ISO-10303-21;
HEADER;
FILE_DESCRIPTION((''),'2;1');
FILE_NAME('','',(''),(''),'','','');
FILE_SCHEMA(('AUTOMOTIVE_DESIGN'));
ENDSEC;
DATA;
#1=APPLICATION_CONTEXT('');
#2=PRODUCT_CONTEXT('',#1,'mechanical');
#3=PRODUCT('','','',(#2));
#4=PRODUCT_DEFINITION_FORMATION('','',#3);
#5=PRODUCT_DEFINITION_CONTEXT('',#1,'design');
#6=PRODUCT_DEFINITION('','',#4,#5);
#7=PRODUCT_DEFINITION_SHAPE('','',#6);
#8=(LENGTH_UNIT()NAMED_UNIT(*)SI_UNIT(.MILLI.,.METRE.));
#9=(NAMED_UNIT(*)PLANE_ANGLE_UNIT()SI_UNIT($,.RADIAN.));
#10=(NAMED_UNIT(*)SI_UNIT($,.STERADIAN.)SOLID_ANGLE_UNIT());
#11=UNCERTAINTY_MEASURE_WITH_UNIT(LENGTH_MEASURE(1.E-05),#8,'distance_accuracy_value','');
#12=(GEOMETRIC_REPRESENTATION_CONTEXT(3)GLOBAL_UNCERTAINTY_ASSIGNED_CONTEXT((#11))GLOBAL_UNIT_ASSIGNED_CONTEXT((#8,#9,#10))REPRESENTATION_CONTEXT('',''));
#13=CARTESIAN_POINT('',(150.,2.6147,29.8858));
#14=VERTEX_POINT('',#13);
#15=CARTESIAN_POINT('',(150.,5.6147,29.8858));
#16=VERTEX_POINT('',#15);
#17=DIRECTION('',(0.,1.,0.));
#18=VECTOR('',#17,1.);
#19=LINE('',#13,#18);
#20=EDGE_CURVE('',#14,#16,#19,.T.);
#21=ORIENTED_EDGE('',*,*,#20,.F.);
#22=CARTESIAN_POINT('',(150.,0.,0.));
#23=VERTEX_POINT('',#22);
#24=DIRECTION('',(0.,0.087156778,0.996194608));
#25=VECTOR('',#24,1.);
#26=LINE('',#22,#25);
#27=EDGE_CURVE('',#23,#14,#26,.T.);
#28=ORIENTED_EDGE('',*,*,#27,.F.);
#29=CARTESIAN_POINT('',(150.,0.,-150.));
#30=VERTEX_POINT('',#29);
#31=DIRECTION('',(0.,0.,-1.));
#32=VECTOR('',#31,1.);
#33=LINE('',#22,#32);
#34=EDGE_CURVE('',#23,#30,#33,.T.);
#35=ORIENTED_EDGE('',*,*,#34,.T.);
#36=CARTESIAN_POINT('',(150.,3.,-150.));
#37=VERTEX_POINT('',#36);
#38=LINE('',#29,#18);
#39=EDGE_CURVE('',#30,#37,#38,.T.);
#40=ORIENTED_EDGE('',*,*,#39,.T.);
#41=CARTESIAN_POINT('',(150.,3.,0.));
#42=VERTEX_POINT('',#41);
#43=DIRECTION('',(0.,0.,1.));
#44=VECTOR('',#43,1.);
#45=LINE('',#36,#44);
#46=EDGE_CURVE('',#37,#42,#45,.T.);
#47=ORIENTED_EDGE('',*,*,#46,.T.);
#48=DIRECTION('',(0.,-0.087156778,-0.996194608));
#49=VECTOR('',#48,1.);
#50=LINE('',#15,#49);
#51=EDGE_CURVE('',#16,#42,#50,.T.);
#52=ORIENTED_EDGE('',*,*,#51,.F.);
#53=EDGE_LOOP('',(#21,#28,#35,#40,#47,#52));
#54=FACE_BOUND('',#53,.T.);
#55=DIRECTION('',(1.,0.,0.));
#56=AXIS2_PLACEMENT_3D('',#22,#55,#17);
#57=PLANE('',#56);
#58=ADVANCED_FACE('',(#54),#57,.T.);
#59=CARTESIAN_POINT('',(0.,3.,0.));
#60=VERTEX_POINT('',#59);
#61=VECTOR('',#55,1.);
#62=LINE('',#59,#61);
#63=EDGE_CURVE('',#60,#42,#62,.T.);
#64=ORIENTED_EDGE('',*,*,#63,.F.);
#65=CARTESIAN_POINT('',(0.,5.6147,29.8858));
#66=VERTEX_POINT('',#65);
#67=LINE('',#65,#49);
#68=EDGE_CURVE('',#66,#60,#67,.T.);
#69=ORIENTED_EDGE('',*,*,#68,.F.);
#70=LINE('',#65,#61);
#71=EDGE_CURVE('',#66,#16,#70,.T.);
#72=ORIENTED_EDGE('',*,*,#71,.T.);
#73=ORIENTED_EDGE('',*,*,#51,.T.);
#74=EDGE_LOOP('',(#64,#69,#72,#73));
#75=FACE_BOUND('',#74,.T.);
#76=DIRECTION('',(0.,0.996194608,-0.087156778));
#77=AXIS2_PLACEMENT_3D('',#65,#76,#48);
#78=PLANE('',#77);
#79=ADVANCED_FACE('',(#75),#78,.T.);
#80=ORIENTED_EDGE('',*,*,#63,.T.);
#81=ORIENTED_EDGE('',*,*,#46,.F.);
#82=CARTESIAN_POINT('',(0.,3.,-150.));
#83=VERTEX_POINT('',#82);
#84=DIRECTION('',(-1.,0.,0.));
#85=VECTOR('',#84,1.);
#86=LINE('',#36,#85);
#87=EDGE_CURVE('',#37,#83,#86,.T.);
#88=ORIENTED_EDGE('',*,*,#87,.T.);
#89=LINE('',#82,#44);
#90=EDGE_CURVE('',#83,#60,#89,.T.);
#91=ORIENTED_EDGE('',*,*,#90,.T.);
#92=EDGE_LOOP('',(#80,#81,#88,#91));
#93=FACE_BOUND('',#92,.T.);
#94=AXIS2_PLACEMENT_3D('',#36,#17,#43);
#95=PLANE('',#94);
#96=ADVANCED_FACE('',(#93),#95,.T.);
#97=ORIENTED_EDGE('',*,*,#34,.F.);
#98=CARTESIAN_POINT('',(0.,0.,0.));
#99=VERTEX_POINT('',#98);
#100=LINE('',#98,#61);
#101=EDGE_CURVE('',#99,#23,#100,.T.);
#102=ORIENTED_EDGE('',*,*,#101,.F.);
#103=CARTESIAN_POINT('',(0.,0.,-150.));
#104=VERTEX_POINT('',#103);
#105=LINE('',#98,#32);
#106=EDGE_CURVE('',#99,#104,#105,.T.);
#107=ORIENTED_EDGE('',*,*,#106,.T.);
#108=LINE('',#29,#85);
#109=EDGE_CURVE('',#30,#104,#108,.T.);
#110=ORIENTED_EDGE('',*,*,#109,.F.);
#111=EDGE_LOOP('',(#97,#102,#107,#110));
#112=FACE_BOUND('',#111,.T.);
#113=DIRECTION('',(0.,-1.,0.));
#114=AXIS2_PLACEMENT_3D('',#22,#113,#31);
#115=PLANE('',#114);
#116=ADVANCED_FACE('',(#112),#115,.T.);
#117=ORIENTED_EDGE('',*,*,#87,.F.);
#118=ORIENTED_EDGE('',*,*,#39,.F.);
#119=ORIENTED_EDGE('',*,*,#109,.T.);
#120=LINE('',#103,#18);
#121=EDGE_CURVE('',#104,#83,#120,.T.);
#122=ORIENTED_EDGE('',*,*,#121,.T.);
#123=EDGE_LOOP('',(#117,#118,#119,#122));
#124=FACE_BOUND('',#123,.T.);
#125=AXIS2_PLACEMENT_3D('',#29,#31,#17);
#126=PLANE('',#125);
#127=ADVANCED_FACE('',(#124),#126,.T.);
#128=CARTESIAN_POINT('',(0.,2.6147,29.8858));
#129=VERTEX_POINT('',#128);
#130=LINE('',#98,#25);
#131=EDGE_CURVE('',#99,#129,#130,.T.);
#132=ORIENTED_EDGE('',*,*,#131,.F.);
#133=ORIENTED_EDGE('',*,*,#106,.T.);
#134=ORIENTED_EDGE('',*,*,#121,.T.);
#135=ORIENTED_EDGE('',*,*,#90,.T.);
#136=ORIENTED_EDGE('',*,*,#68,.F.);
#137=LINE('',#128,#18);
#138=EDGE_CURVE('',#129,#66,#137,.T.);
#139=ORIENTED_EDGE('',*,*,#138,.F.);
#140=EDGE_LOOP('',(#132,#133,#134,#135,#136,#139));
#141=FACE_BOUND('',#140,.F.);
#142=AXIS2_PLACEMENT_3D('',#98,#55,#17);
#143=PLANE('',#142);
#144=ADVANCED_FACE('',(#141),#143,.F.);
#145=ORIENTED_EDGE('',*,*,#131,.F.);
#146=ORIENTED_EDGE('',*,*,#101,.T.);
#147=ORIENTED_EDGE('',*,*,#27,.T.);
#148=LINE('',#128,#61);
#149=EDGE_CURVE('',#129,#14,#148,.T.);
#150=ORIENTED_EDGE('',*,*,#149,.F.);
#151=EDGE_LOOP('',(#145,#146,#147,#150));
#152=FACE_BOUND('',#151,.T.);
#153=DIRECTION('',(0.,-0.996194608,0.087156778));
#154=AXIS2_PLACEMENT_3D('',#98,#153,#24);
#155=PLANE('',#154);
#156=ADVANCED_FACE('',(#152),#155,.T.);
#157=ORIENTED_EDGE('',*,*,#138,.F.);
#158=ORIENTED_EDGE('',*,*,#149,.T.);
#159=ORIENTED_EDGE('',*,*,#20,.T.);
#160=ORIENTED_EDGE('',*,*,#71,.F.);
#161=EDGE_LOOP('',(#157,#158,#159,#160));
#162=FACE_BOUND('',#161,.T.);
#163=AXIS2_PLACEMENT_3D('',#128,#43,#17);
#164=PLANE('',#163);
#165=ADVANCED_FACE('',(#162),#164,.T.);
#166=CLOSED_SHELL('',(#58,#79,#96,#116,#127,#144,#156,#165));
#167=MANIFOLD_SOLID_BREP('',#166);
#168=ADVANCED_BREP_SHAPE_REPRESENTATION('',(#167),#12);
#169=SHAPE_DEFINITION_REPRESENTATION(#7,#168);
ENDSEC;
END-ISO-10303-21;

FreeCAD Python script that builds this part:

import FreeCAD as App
import Part
import Sketcher
from FreeCAD import Vector
Q = App.Units.Quantity


def add_polygon(sketch, points):
    """Adds a closed chain of lines whose ends are joined by coincident constraints."""
    first, n = sketch.GeometryCount, len(points)
    for a, b in zip(points, points[1:] + points[:1]):
        sketch.addGeometry(Part.LineSegment(App.Vector(*a, 0), App.Vector(*b, 0)), False)
    for i in range(n):
        sketch.addConstraint(Sketcher.Constraint("Coincident", first + i, 2, first + (i + 1) % n, 1))

doc = App.newDocument("Part")
params = doc.addObject("Spreadsheet::Sheet", "Params")
for row, (alias, value) in enumerate([
    ("sketch1_width", "3 mm"),
    ("sketch1_length", "30 mm"),
    ("pad1_length", "150 mm"),
    ("sketch2_width", "3 mm"),
    ("sketch2_height", "150 mm"),
    ("pad2_length", "150 mm"),
], start=1):
    params.set(f"A{row}", alias)
    params.set(f"B{row}", "=" + value)
    params.setAlias(f"B{row}", alias)

body = doc.addObject("PartDesign::Body", "Body")

# Sketch on YZ plane
sketch1 = body.newObject("Sketcher::SketchObject", "Sketch")
sketch1.AttachmentSupport = (doc.getObject("YZ_Plane"), [""])
sketch1.MapMode = "FlatFace"
add_polygon(sketch1, [(2.6, 29.9), (0, 0), (3, 0), (5.6, 29.9)])  # lines 0-3
sketch1.addConstraint(Sketcher.Constraint("Horizontal", 1))
sketch1.addConstraint(Sketcher.Constraint("Horizontal", 3))
sketch1.addConstraint(Sketcher.Constraint("Coincident", 0, 2, -1, 1))
sketch1.addConstraint(Sketcher.Constraint("Parallel", 0, 2))
sketch1.addConstraint(Sketcher.Constraint("DistanceX", 1, 1, 1, 2, 3.0))
sketch1.addConstraint(Sketcher.Constraint("Angle", 0, Q("-95 deg")))
sketch1.addConstraint(Sketcher.Constraint("Distance", 0, 30.0))
sketch1.setExpression("Constraints[8]", "Params.sketch1_width")
sketch1.setExpression("Constraints[10]", "Params.sketch1_length")
pad1 = body.newObject("PartDesign::Pad", "Pad")
pad1.Profile = sketch1
pad1.setExpression("Length", "Params.pad1_length")

# Sketch on YZ plane
sketch2 = body.newObject("Sketcher::SketchObject", "Sketch001")
sketch2.AttachmentSupport = (doc.getObject("YZ_Plane"), [""])
sketch2.MapMode = "FlatFace"
sketch2.AttachmentOffset = App.Placement(Vector(0, 0, 150), App.Rotation())
add_polygon(sketch2, [(3, 0), (0, 0), (0, -150), (3, -150)])  # lines 0-3
sketch2.addConstraint(Sketcher.Constraint("Horizontal", 0))
sketch2.addConstraint(Sketcher.Constraint("Vertical", 1))
sketch2.addConstraint(Sketcher.Constraint("Horizontal", 2))
sketch2.addConstraint(Sketcher.Constraint("Vertical", 3))
sketch2.addConstraint(Sketcher.Constraint("Coincident", 0, 2, -1, 1))
sketch2.addConstraint(Sketcher.Constraint("DistanceX", 0, 2, 0, 1, 3.0))
sketch2.addConstraint(Sketcher.Constraint("DistanceY", 1, 2, 1, 1, 150.0))
sketch2.setExpression("Constraints[9]", "Params.sketch2_width")
sketch2.setExpression("Constraints[10]", "Params.sketch2_height")
pad2 = body.newObject("PartDesign::Pad", "Pad001")
pad2.Profile = sketch2
pad2.setExpression("Length", "Params.pad2_length")
pad2.Reversed = True

doc.recompute()
